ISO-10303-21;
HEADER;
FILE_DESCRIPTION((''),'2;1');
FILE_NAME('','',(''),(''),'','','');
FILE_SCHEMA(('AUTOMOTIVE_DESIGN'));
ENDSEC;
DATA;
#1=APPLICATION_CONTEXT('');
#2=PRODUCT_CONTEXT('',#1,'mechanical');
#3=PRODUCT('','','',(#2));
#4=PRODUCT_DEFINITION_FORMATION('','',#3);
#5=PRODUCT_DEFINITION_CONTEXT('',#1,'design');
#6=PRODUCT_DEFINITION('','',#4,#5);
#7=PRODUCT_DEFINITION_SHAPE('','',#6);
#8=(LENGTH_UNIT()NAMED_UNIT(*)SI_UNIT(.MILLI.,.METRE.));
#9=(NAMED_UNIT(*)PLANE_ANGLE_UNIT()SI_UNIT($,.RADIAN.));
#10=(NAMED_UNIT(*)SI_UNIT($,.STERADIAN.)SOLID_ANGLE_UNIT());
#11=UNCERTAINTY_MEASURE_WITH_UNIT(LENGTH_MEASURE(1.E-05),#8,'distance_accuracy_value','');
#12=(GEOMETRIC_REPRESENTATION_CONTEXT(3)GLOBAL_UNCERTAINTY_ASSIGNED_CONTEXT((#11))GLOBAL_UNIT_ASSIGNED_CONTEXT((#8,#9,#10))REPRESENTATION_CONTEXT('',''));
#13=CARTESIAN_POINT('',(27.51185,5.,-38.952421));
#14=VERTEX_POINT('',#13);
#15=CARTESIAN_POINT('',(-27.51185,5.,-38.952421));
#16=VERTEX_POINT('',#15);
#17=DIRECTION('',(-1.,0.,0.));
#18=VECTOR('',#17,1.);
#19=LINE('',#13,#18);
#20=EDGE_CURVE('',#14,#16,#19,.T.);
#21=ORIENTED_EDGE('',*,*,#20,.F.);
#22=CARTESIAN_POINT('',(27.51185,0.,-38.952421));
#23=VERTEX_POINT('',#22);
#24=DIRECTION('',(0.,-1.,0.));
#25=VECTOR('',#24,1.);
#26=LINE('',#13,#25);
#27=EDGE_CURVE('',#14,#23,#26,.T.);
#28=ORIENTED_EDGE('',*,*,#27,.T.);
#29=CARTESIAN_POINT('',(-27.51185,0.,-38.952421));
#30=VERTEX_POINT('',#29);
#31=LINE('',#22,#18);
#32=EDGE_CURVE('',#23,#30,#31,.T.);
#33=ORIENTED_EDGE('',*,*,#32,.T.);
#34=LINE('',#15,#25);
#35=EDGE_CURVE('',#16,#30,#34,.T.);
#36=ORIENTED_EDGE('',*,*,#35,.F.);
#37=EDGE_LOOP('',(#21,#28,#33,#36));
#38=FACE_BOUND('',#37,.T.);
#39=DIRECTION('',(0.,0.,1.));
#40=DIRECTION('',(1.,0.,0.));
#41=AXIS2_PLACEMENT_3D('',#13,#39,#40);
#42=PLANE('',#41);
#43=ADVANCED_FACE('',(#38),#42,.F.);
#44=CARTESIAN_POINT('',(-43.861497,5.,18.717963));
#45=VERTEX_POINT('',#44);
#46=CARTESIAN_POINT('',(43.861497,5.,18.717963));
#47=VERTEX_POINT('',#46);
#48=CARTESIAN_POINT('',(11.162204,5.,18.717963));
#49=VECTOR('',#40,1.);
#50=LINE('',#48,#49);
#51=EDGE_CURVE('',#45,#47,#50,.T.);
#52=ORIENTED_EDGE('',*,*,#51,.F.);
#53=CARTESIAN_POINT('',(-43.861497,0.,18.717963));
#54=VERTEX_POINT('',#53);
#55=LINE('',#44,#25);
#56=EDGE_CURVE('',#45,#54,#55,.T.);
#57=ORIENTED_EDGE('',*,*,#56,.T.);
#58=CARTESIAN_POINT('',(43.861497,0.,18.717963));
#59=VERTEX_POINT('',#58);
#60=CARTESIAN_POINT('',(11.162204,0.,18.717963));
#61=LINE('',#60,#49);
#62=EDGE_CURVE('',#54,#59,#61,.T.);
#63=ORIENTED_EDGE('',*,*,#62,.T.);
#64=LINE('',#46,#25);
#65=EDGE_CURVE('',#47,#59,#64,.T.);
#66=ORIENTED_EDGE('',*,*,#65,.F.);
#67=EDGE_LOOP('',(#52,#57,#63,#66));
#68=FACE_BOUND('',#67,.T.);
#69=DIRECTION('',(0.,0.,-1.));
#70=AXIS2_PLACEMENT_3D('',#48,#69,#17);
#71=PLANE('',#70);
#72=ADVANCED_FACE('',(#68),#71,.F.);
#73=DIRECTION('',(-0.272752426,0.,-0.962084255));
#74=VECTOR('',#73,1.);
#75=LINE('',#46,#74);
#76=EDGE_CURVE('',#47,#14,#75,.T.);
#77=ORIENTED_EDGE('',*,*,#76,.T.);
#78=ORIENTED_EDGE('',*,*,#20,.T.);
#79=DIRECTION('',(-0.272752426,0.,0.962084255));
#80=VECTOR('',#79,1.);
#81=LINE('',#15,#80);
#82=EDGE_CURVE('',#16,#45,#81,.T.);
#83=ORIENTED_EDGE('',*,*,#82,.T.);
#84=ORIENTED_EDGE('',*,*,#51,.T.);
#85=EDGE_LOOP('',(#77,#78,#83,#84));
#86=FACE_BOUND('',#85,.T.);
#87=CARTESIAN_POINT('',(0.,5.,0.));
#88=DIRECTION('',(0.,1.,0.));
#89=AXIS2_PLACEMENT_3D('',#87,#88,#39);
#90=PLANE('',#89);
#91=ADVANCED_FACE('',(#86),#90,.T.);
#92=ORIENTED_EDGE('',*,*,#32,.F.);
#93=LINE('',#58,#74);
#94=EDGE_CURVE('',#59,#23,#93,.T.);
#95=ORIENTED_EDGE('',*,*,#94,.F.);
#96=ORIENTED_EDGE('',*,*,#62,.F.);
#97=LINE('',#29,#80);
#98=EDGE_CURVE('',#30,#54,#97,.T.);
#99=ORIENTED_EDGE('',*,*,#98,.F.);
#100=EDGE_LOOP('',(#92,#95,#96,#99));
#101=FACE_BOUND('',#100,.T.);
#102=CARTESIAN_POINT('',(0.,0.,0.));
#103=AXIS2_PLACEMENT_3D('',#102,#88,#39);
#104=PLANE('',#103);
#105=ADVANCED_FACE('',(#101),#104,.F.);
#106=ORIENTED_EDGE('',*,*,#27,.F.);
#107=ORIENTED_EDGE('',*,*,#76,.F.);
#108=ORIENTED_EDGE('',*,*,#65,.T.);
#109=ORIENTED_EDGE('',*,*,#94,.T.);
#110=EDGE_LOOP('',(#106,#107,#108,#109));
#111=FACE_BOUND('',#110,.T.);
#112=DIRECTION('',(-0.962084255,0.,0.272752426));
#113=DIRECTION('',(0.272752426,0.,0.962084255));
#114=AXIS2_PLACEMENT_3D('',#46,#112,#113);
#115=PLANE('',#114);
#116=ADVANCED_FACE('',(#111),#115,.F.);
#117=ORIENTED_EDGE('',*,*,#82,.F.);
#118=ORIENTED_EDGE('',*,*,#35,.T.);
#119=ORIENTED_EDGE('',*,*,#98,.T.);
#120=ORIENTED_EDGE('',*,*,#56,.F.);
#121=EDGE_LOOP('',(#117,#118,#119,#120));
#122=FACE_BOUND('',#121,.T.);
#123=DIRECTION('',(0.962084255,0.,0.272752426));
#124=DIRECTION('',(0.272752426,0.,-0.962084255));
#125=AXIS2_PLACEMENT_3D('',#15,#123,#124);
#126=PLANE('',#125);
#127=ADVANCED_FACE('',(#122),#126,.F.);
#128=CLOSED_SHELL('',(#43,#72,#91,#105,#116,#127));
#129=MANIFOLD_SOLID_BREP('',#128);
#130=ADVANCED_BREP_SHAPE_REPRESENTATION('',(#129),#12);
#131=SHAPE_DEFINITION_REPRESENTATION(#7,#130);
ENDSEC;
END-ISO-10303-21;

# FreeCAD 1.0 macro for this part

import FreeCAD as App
import Part
import Sketcher

doc = App.newDocument("Part")
body = doc.addObject("PartDesign::Body", "Body")

# Sketch on XZ plane
sketch1 = body.newObject("Sketcher::SketchObject", "Sketch")
sketch1.AttachmentSupport = (doc.getObject("XZ_Plane"), [""])
sketch1.MapMode = "FlatFace"
sketch1.addGeometry([
    Part.LineSegment(App.Vector(28, -39, 0), App.Vector(-28, -39, 0)),
    Part.LineSegment(App.Vector(-28, -39, 0), App.Vector(-44, 19, 0)),
    Part.LineSegment(App.Vector(-44, 19, 0), App.Vector(44, 19, 0)),
    Part.LineSegment(App.Vector(44, 19, 0), App.Vector(28, -39, 0)),
], False)
sketch1.addConstraint([
    Sketcher.Constraint("Coincident", 0, 2, 1, 1),
    Sketcher.Constraint("Coincident", 1, 2, 2, 1),
    Sketcher.Constraint("Coincident", 2, 2, 3, 1),
    Sketcher.Constraint("Coincident", 3, 2, 0, 1),
    Sketcher.Constraint("Horizontal", 0),
    Sketcher.Constraint("Horizontal", 2),
    Sketcher.Constraint("Equal", 1, 3),
    Sketcher.Constraint("DistanceX", 0, 2, 0, 1, 55.0237),
    Sketcher.Constraint("DistanceX", 2, 1, 2, 2, 87.722993),
    Sketcher.Constraint("DistanceX", 0, 2, -1, 1, 27.51185),
    Sketcher.Constraint("DistanceY", 0, 2, -1, 1, 38.952421),
    Sketcher.Constraint("Distance", 1, 59.943175),
])
pad1 = body.newObject("PartDesign::Pad", "Pad")
pad1.Profile = sketch1
pad1.Length = 5
pad1.Reversed = True

doc.recompute()
